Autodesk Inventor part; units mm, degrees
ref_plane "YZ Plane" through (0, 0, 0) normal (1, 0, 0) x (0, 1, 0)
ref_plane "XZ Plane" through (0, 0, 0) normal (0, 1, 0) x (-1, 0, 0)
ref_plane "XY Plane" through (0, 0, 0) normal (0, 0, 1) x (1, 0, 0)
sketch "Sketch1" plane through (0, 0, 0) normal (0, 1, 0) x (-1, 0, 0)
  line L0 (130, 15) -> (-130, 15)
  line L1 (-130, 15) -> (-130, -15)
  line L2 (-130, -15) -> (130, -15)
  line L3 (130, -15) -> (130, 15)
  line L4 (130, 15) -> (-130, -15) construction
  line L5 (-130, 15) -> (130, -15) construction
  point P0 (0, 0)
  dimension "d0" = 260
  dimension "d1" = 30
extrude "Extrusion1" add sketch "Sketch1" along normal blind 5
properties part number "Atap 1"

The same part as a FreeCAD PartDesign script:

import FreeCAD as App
import Part
import Sketcher
from FreeCAD import Vector
Q = App.Units.Quantity

doc = App.newDocument("Part")
body = doc.addObject("PartDesign::Body", "Body")

# Sketch on XZ plane
sketch1 = body.newObject("Sketcher::SketchObject", "Sketch")
sketch1.AttachmentSupport = (doc.getObject("XZ_Plane"), [""])
sketch1.MapMode = "FlatFace"
sketch1.addGeometry(Part.LineSegment(Vector(-130, -15, 0), Vector(-130, 15, 0)), False)
sketch1.addGeometry(Part.LineSegment(Vector(-130, 15, 0), Vector(130, 15, 0)), False)
sketch1.addGeometry(Part.LineSegment(Vector(130, 15, 0), Vector(130, -15, 0)), False)
sketch1.addGeometry(Part.LineSegment(Vector(130, -15, 0), Vector(-130, -15, 0)), False)
sketch1.addConstraint(Sketcher.Constraint("Coincident", 0, 2, 1, 1))
sketch1.addConstraint(Sketcher.Constraint("Coincident", 1, 2, 2, 1))
sketch1.addConstraint(Sketcher.Constraint("Coincident", 2, 2, 3, 1))
sketch1.addConstraint(Sketcher.Constraint("Coincident", 3, 2, 0, 1))
sketch1.addConstraint(Sketcher.Constraint("Vertical", 0))
sketch1.addConstraint(Sketcher.Constraint("Horizontal", 1))
sketch1.addConstraint(Sketcher.Constraint("Vertical", 2))
sketch1.addConstraint(Sketcher.Constraint("Horizontal", 3))
sketch1.addConstraint(Sketcher.Constraint("Symmetric", 0, 2, 2, 2, -1, 1))
sketch1.addConstraint(Sketcher.Constraint("DistanceX", 1, 1, 1, 2, Q("260 mm")))
sketch1.addConstraint(Sketcher.Constraint("DistanceY", 0, 1, 0, 2, Q("30 mm")))
pad1 = body.newObject("PartDesign::Pad", "Pad")
pad1.Profile = sketch1
pad1.Length = 5
pad1.Reversed = True

doc.recompute()
